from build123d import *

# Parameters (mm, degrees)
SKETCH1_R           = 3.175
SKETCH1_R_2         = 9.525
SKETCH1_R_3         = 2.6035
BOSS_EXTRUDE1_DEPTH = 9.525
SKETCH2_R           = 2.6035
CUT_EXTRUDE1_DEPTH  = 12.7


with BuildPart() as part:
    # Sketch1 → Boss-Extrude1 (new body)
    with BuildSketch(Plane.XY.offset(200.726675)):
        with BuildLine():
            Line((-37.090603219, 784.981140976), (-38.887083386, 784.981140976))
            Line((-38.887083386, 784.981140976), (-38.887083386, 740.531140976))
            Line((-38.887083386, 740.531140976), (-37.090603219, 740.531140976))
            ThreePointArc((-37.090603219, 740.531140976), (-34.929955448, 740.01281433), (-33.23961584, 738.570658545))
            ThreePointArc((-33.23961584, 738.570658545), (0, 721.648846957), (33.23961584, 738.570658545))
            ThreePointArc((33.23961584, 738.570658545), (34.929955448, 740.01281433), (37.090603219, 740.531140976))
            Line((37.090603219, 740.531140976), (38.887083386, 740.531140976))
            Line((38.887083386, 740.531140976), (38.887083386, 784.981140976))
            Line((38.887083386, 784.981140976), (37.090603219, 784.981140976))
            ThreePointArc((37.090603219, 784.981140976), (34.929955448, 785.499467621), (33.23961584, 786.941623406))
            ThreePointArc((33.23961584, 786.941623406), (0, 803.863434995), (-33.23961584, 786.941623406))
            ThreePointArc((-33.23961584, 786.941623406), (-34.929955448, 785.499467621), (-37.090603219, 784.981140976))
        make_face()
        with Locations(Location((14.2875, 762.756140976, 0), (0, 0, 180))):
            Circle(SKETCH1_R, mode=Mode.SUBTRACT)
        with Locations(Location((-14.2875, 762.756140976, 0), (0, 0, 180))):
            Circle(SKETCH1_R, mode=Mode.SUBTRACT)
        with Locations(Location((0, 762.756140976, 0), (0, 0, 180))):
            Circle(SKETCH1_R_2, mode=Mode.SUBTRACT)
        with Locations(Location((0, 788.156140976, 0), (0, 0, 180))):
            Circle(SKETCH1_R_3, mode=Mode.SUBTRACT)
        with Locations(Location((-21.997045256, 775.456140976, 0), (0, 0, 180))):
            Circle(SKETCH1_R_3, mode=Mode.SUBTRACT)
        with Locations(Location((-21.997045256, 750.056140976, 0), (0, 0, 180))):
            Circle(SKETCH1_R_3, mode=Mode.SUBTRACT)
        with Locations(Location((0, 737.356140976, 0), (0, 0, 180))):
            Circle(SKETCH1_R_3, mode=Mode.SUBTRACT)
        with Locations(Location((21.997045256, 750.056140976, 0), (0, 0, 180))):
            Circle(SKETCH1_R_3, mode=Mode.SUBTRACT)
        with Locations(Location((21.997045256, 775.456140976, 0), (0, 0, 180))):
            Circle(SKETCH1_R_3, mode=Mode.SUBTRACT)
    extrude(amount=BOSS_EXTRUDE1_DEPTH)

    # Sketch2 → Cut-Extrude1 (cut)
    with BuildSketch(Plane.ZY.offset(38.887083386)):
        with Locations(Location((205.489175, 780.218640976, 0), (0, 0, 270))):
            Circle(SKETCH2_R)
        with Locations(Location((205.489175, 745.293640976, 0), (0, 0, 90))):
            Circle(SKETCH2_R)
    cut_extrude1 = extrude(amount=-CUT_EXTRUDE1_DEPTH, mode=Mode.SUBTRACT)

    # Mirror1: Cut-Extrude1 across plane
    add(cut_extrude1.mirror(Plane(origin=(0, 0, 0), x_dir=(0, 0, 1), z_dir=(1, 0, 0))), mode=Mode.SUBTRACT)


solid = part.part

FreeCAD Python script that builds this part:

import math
import FreeCAD as App
import Part
import Sketcher
Q = App.Units.Quantity

doc = App.newDocument("Part")
body = doc.addObject("PartDesign::Body", "Body")

# Sketch on XY plane
sketch1 = body.newObject("Sketcher::SketchObject", "Sketch")
sketch1.AttachmentSupport = (doc.getObject("XY_Plane"), [""])
sketch1.MapMode = "FlatFace"
sketch1.AttachmentOffset = App.Placement(App.Vector(0, 0, 200.726675), App.Rotation())
sketch1.addGeometry(Part.LineSegment(App.Vector(-37.1, 785, 0), App.Vector(-38.9, 785, 0)), False)
sketch1.addGeometry(Part.LineSegment(App.Vector(-38.9, 785, 0), App.Vector(-38.9, 740.5, 0)), False)
sketch1.addGeometry(Part.LineSegment(App.Vector(-38.9, 740.5, 0), App.Vector(-37.1, 740.5, 0)), False)
sketch1.addGeometry(Part.ArcOfCircle(Part.Circle(App.Vector(-37.1, 735.8, 0), App.Vector(0, 0, 1), 4.8), math.radians(36), math.radians(90)), False)
sketch1.addGeometry(Part.ArcOfCircle(Part.Circle(App.Vector(0, 762.8, 0), App.Vector(0, 0, 1), 41.1), math.radians(-144), math.radians(-36)), False)
sketch1.addGeometry(Part.ArcOfCircle(Part.Circle(App.Vector(37.1, 735.8, 0), App.Vector(0, 0, 1), 4.8), math.radians(90), math.radians(144)), False)
sketch1.addGeometry(Part.LineSegment(App.Vector(37.1, 740.5, 0), App.Vector(38.9, 740.5, 0)), False)
sketch1.addGeometry(Part.LineSegment(App.Vector(38.9, 740.5, 0), App.Vector(38.9, 785, 0)), False)
sketch1.addGeometry(Part.LineSegment(App.Vector(38.9, 785, 0), App.Vector(37.1, 785, 0)), False)
sketch1.addGeometry(Part.ArcOfCircle(Part.Circle(App.Vector(37.1, 789.7, 0), App.Vector(0, 0, 1), 4.8), math.radians(-144), math.radians(-90)), False)
sketch1.addGeometry(Part.ArcOfCircle(Part.Circle(App.Vector(0, 762.8, 0), App.Vector(0, 0, 1), 41.1), math.radians(36), math.radians(144)), False)
sketch1.addGeometry(Part.ArcOfCircle(Part.Circle(App.Vector(-37.1, 789.7, 0), App.Vector(0, 0, 1), 4.8), math.radians(-90), math.radians(-36)), False)
sketch1.addGeometry(Part.Circle(App.Vector(-22, 750.1, 0), App.Vector(0, 0, 1), 2.6), False)
sketch1.addGeometry(Part.Circle(App.Vector(0, 737.4, 0), App.Vector(0, 0, 1), 2.6), False)
sketch1.addGeometry(Part.Circle(App.Vector(22, 750.1, 0), App.Vector(0, 0, 1), 2.6), False)
sketch1.addGeometry(Part.Circle(App.Vector(-14.3, 762.8, 0), App.Vector(0, 0, 1), 3.2), False)
sketch1.addGeometry(Part.Circle(App.Vector(-22, 775.5, 0), App.Vector(0, 0, 1), 2.6), False)
sketch1.addGeometry(Part.Circle(App.Vector(0, 762.8, 0), App.Vector(0, 0, 1), 9.5), False)
sketch1.addGeometry(Part.Circle(App.Vector(14.3, 762.8, 0), App.Vector(0, 0, 1), 3.2), False)
sketch1.addGeometry(Part.Circle(App.Vector(22, 775.5, 0), App.Vector(0, 0, 1), 2.6), False)
sketch1.addGeometry(Part.Circle(App.Vector(0, 788.2, 0), App.Vector(0, 0, 1), 2.6), False)
sketch1.addConstraint(Sketcher.Constraint("Coincident", 0, 2, 1, 1))
sketch1.addConstraint(Sketcher.Constraint("Coincident", 1, 2, 2, 1))
sketch1.addConstraint(Sketcher.Constraint("Tangent", 2, 2, 3, 2))
sketch1.addConstraint(Sketcher.Constraint("Tangent", 3, 1, 4, 1))
sketch1.addConstraint(Sketcher.Constraint("Tangent", 4, 2, 5, 2))
sketch1.addConstraint(Sketcher.Constraint("Tangent", 5, 1, 6, 1))
sketch1.addConstraint(Sketcher.Constraint("Coincident", 6, 2, 7, 1))
sketch1.addConstraint(Sketcher.Constraint("Coincident", 7, 2, 8, 1))
sketch1.addConstraint(Sketcher.Constraint("Tangent", 8, 2, 9, 2))
sketch1.addConstraint(Sketcher.Constraint("Tangent", 9, 1, 10, 1))
sketch1.addConstraint(Sketcher.Constraint("Tangent", 10, 2, 11, 2))
sketch1.addConstraint(Sketcher.Constraint("Tangent", 11, 1, 0, 1))
sketch1.addConstraint(Sketcher.Constraint("Horizontal", 0))
sketch1.addConstraint(Sketcher.Constraint("Vertical", 1))
sketch1.addConstraint(Sketcher.Constraint("Horizontal", 2))
sketch1.addConstraint(Sketcher.Constraint("Horizontal", 6))
sketch1.addConstraint(Sketcher.Constraint("Vertical", 7))
sketch1.addConstraint(Sketcher.Constraint("Horizontal", 8))
sketch1.addConstraint(Sketcher.Constraint("Coincident", 10, 3, 4, 3))
sketch1.addConstraint(Sketcher.Constraint("Coincident", 17, 3, 4, 3))
sketch1.addConstraint(Sketcher.Constraint("Equal", 3, 5))
sketch1.addConstraint(Sketcher.Constraint("Equal", 5, 9))
sketch1.addConstraint(Sketcher.Constraint("Equal", 4, 10))
sketch1.addConstraint(Sketcher.Constraint("Equal", 9, 11))
sketch1.addConstraint(Sketcher.Constraint("Equal", 12, 13))
sketch1.addConstraint(Sketcher.Constraint("Equal", 13, 14))
sketch1.addConstraint(Sketcher.Constraint("Equal", 14, 16))
sketch1.addConstraint(Sketcher.Constraint("Equal", 15, 18))
sketch1.addConstraint(Sketcher.Constraint("Equal", 16, 19))
sketch1.addConstraint(Sketcher.Constraint("Equal", 19, 20))
sketch1.addConstraint(Sketcher.Constraint("Symmetric", 3, 3, 5, 3, -2))
sketch1.addConstraint(Sketcher.Constraint("Symmetric", 12, 3, 14, 3, -2))
sketch1.addConstraint(Sketcher.Constraint("Symmetric", 15, 3, 18, 3, -2))
sketch1.addConstraint(Sketcher.Constraint("Symmetric", 16, 3, 19, 3, -2))
sketch1.addConstraint(Sketcher.Constraint("Symmetric", 0, 2, 7, 2, -2))
sketch1.addConstraint(Sketcher.Constraint("PointOnObject", 13, 3, -2))
sketch1.addConstraint(Sketcher.Constraint("PointOnObject", 20, 3, -2))
sketch1.addConstraint(Sketcher.Constraint("Horizontal", 10, 3, 15, 3))
sketch1.addConstraint(Sketcher.Constraint("Vertical", 5, 3, 9, 3))
sketch1.addConstraint(Sketcher.Constraint("Vertical", 12, 3, 16, 3))
sketch1.addConstraint(Sketcher.Constraint("Diameter", 15, Q("0.25 in")))
sketch1.addConstraint(Sketcher.Constraint("Diameter", 17, Q("0.75 in")))
sketch1.addConstraint(Sketcher.Constraint("Diameter", 12, Q("0.205 in")))
sketch1.addConstraint(Sketcher.Constraint("Radius", 3, Q("0.1875 in")))
sketch1.addConstraint(Sketcher.Constraint("DistanceY", 13, 3, 10, 3, Q("1 in")))
sketch1.addConstraint(Sketcher.Constraint("DistanceY", 12, 3, 16, 3, Q("1 in")))
sketch1.addConstraint(Sketcher.Constraint("DistanceY", 4, 3, 20, 3, Q("1 in")))
sketch1.addConstraint(Sketcher.Constraint("DistanceY", 1, 2, 1, 1, Q("1.75 in")))
sketch1.addConstraint(Sketcher.Constraint("DistanceY", 12, 3, 10, 3, Q("0.5 in")))
sketch1.addConstraint(Sketcher.Constraint("DistanceX", 15, 3, -1, 1, Q("0.5625 in")))
sketch1.addConstraint(Sketcher.Constraint("Radius", 4, Q("41.107294 mm")))
sketch1.addConstraint(Sketcher.Constraint("DistanceX", 0, 2, 0, 1, Q("1.79648 mm")))
sketch1.addConstraint(Sketcher.Constraint("DistanceY", -1, 1, 3, 3, Q("735.768641 mm")))
sketch1.addConstraint(Sketcher.Constraint("DistanceX", 12, 3, 5, 3, Q("59.087648 mm")))
pad1 = body.newObject("PartDesign::Pad", "Pad")
pad1.Profile = sketch1
pad1.Length = Q("0.375 in")

# Sketch on YZ plane
sketch2 = body.newObject("Sketcher::SketchObject", "Sketch001")
sketch2.AttachmentSupport = (doc.getObject("YZ_Plane"), [""])
sketch2.MapMode = "FlatFace"
sketch2.AttachmentOffset = App.Placement(App.Vector(0, 0, -38.887083), App.Rotation())
sketch2.addGeometry(Part.Circle(App.Vector(780.2, 205.5, 0), App.Vector(0, 0, 1), 2.6), False)
sketch2.addGeometry(Part.Circle(App.Vector(745.3, 205.5, 0), App.Vector(0, 0, 1), 2.6), False)
sketch2.addConstraint(Sketcher.Constraint("Equal", 0, 1))
sketch2.addConstraint(Sketcher.Constraint("Horizontal", 0, 3, 1, 3))
sketch2.addConstraint(Sketcher.Constraint("Diameter", 0, Q("0.205 in")))
sketch2.addConstraint(Sketcher.Constraint("DistanceX", 1, 3, 0, 3, Q("1.375 in")))
sketch2.addConstraint(Sketcher.Constraint("DistanceX", -1, 1, 0, 3, Q("780.218641 mm")))
sketch2.addConstraint(Sketcher.Constraint("DistanceY", -1, 1, 0, 3, Q("205.489175 mm")))
pocket1 = body.newObject("PartDesign::Pocket", "Pocket")
pocket1.Profile = sketch2
pocket1.Length = Q("0.5 in")
pocket1.Reversed = True
doc.recompute()

mirrored = body.newObject("PartDesign::Mirrored", "Mirrored")
mirrored.Originals = [pocket1]
mirrored.MirrorPlane = (doc.getObject("YZ_Plane"), [""])
body.Tip = mirrored

doc.recompute()
